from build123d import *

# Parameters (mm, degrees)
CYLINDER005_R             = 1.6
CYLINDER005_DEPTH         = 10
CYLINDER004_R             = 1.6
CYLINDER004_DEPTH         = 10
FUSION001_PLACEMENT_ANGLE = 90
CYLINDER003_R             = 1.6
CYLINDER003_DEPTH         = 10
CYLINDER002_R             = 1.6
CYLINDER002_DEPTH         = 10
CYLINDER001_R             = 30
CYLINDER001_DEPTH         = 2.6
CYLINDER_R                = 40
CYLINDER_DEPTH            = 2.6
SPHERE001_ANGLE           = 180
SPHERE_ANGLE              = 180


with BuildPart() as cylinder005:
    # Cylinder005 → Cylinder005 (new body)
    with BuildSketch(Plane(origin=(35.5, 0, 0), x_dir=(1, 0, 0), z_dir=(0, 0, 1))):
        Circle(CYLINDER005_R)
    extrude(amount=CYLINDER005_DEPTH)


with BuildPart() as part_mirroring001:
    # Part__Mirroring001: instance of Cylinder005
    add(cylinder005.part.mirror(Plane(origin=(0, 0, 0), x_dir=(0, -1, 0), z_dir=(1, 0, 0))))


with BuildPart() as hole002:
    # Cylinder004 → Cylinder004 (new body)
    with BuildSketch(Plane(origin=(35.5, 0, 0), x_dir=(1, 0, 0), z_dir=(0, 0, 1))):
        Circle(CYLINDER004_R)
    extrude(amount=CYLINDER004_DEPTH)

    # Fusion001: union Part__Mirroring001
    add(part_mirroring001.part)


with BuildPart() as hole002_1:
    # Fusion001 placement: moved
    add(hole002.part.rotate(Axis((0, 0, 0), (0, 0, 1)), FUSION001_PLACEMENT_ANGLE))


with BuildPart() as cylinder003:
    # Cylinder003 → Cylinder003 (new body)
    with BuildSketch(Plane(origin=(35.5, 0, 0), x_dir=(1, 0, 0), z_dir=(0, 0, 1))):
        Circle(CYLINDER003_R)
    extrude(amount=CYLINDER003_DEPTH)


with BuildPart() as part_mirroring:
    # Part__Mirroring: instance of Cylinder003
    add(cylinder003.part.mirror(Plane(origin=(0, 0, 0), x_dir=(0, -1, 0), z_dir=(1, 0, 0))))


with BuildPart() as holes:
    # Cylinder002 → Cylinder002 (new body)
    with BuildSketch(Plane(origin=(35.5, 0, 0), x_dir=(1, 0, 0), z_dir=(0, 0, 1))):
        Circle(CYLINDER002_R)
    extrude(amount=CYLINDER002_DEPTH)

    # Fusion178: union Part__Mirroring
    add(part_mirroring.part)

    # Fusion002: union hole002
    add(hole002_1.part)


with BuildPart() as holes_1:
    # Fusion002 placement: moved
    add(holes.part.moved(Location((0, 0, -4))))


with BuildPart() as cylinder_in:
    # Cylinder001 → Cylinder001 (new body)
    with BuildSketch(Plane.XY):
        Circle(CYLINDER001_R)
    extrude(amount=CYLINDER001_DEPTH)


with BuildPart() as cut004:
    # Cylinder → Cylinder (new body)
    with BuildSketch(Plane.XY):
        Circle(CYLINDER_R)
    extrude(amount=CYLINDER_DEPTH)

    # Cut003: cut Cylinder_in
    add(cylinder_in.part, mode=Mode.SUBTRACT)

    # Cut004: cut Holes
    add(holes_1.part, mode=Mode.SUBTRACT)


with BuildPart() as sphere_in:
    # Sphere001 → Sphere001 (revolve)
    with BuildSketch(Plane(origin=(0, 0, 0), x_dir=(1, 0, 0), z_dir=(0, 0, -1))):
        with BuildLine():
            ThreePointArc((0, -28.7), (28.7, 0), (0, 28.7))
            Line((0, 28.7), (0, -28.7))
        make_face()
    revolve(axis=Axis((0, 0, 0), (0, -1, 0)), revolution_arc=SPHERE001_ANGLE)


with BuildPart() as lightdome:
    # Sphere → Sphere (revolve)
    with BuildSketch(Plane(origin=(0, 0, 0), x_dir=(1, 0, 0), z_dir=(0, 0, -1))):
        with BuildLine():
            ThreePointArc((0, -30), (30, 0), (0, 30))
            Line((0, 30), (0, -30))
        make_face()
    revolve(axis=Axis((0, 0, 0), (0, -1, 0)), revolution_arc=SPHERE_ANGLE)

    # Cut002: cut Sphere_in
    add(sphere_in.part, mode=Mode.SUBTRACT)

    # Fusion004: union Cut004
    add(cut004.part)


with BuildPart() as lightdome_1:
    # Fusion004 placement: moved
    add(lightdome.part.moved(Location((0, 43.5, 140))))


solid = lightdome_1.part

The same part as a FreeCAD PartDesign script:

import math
import FreeCAD as App
import Part
import Sketcher
from FreeCAD import Vector

doc = App.newDocument("Part")
body = doc.addObject("PartDesign::Body", "Body")

# Sketch on XY plane
sketch1 = body.newObject("Sketcher::SketchObject", "Sketch")
sketch1.AttachmentSupport = (doc.getObject("XY_Plane"), [""])
sketch1.MapMode = "FlatFace"
sketch1.addGeometry(Part.Circle(Vector(35.5, 0, 0), Vector(0, 0, 1), 1.6), False)
sketch1.addConstraint(Sketcher.Constraint("PointOnObject", 0, 3, -1))
sketch1.addConstraint(Sketcher.Constraint("Diameter", 0, 3.2))
sketch1.addConstraint(Sketcher.Constraint("DistanceX", -1, 1, 0, 3, 35.5))
pad1 = body.newObject("PartDesign::Pad", "Pad")
pad1.Profile = sketch1
pad1.Length = 10
body2 = doc.addObject("PartDesign::Body", "Body001")
doc.recompute()

mirroring = doc.addObject("Part::Mirroring", "Mirroring")
mirroring.Source = body
mirroring.Base = Vector(0, 0, 0)
mirroring.Normal = Vector(1, 0, 0)
body2.BaseFeature = mirroring
doc.recompute()
body3 = doc.addObject("PartDesign::Body", "Body002")
body3.AllowCompound = True

# Sketch on XY plane
sketch2 = body3.newObject("Sketcher::SketchObject", "Sketch001")
sketch2.AttachmentSupport = (doc.getObject("XY_Plane002"), [""])
sketch2.MapMode = "FlatFace"
sketch2.addGeometry(Part.Circle(Vector(35.5, 0, 0), Vector(0, 0, 1), 1.6), False)
sketch2.addConstraint(Sketcher.Constraint("PointOnObject", 0, 3, -1))
sketch2.addConstraint(Sketcher.Constraint("Diameter", 0, 3.2))
sketch2.addConstraint(Sketcher.Constraint("DistanceX", -1, 1, 0, 3, 35.5))
pad2 = body3.newObject("PartDesign::Pad", "Pad001")
pad2.Profile = sketch2
pad2.Length = 10
doc.recompute()

boolean = body3.newObject("PartDesign::Boolean", "Boolean")
boolean.Type = "Fuse"
boolean.addObjects([body2])
body4 = doc.addObject("PartDesign::Body", "Body003")
body4.AllowCompound = True
doc.recompute()

body3.Placement = App.Placement(Vector(0, 0, 0), App.Rotation(Vector(0, 0, 1), 90))
boolean2 = body4.newObject("PartDesign::Boolean", "Boolean001")
boolean2.Type = "Fuse"
boolean2.addObjects([body3])
body5 = doc.addObject("PartDesign::Body", "Body004")

# Sketch on XY plane
sketch3 = body5.newObject("Sketcher::SketchObject", "Sketch002")
sketch3.AttachmentSupport = (doc.getObject("XY_Plane004"), [""])
sketch3.MapMode = "FlatFace"
sketch3.addGeometry(Part.Circle(Vector(35.5, 0, 0), Vector(0, 0, 1), 1.6), False)
sketch3.addConstraint(Sketcher.Constraint("PointOnObject", 0, 3, -1))
sketch3.addConstraint(Sketcher.Constraint("Diameter", 0, 3.2))
sketch3.addConstraint(Sketcher.Constraint("DistanceX", -1, 1, 0, 3, 35.5))
pad3 = body5.newObject("PartDesign::Pad", "Pad002")
pad3.Profile = sketch3
pad3.Length = 10
body6 = doc.addObject("PartDesign::Body", "Body005")
doc.recompute()

mirroring2 = doc.addObject("Part::Mirroring", "Mirroring001")
mirroring2.Source = body5
mirroring2.Base = Vector(0, 0, 0)
mirroring2.Normal = Vector(1, 0, 0)
body6.BaseFeature = mirroring2
doc.recompute()
body7 = doc.addObject("PartDesign::Body", "Body006")
body7.AllowCompound = True

# Sketch on XY plane
sketch4 = body7.newObject("Sketcher::SketchObject", "Sketch003")
sketch4.AttachmentSupport = (doc.getObject("XY_Plane006"), [""])
sketch4.MapMode = "FlatFace"
sketch4.addGeometry(Part.Circle(Vector(35.5, 0, 0), Vector(0, 0, 1), 1.6), False)
sketch4.addConstraint(Sketcher.Constraint("PointOnObject", 0, 3, -1))
sketch4.addConstraint(Sketcher.Constraint("Diameter", 0, 3.2))
sketch4.addConstraint(Sketcher.Constraint("DistanceX", -1, 1, 0, 3, 35.5))
pad4 = body7.newObject("PartDesign::Pad", "Pad003")
pad4.Profile = sketch4
pad4.Length = 10
doc.recompute()

boolean3 = body7.newObject("PartDesign::Boolean", "Boolean002")
boolean3.Type = "Fuse"
boolean3.addObjects([body6])
doc.recompute()

boolean4 = body7.newObject("PartDesign::Boolean", "Boolean003")
boolean4.Type = "Fuse"
boolean4.addObjects([body4])
body8 = doc.addObject("PartDesign::Body", "Body007")
body8.AllowCompound = True
doc.recompute()

body7.Placement = App.Placement(Vector(0, 0, -4), App.Rotation(Vector(0, 0, 1), 0))
boolean5 = body8.newObject("PartDesign::Boolean", "Boolean004")
boolean5.Type = "Fuse"
boolean5.addObjects([body7])
body9 = doc.addObject("PartDesign::Body", "Body008")

# Sketch on XY plane
sketch5 = body9.newObject("Sketcher::SketchObject", "Sketch004")
sketch5.AttachmentSupport = (doc.getObject("XY_Plane008"), [""])
sketch5.MapMode = "FlatFace"
sketch5.addGeometry(Part.Circle(Vector(0, 0, 0), Vector(0, 0, 1), 30), False)
sketch5.addConstraint(Sketcher.Constraint("Coincident", 0, 3, -1, 1))
sketch5.addConstraint(Sketcher.Constraint("Diameter", 0, 60.0))
pad5 = body9.newObject("PartDesign::Pad", "Pad004")
pad5.Profile = sketch5
pad5.Length = 2.6
body10 = doc.addObject("PartDesign::Body", "Body009")

# Sketch on XY plane
sketch6 = body10.newObject("Sketcher::SketchObject", "Sketch005")
sketch6.AttachmentSupport = (doc.getObject("XY_Plane009"), [""])
sketch6.MapMode = "FlatFace"
sketch6.addGeometry(Part.Circle(Vector(0, 0, 0), Vector(0, 0, 1), 40), False)
sketch6.addConstraint(Sketcher.Constraint("Coincident", 0, 3, -1, 1))
sketch6.addConstraint(Sketcher.Constraint("Diameter", 0, 80.0))
pad6 = body10.newObject("PartDesign::Pad", "Pad005")
pad6.Profile = sketch6
pad6.Length = 2.6
doc.recompute()

boolean6 = body10.newObject("PartDesign::Boolean", "Boolean005")
boolean6.Type = "Cut"
boolean6.addObjects([body9])
doc.recompute()

boolean7 = body10.newObject("PartDesign::Boolean", "Boolean006")
boolean7.Type = "Cut"
boolean7.addObjects([body8])
body11 = doc.addObject("PartDesign::Body", "Body010")

# Sketch on XY plane
sketch7 = body11.newObject("Sketcher::SketchObject", "Sketch006")
sketch7.AttachmentSupport = (doc.getObject("XY_Plane010"), [""])
sketch7.MapMode = "FlatFace"
sketch7.addGeometry(Part.ArcOfCircle(Part.Circle(Vector(0, 0, 0), Vector(0, 0, 1), 29), math.radians(-90), math.radians(90)), False)
sketch7.addGeometry(Part.LineSegment(Vector(0, -29, 0), Vector(0, 29, 0)), False)
sketch7.addConstraint(Sketcher.Constraint("Coincident", 0, 1, 1, 1))
sketch7.addConstraint(Sketcher.Constraint("Coincident", 1, 2, 0, 2))
sketch7.addConstraint(Sketcher.Constraint("Vertical", 1))
sketch7.addConstraint(Sketcher.Constraint("Coincident", 0, 3, -1, 1))
sketch7.addConstraint(Sketcher.Constraint("PointOnObject", 0, 1, -2))
sketch7.addConstraint(Sketcher.Constraint("Radius", 0, 28.7))
revolution = body11.newObject("PartDesign::Revolution", "Revolution")
revolution.Profile = sketch7
revolution.ReferenceAxis = (sketch7, ["V_Axis"])
revolution.Angle = 180
revolution.Reversed = True
body12 = doc.addObject("PartDesign::Body", "Body011")
body12.AllowCompound = True

# Sketch on XY plane
sketch8 = body12.newObject("Sketcher::SketchObject", "Sketch007")
sketch8.AttachmentSupport = (doc.getObject("XY_Plane011"), [""])
sketch8.MapMode = "FlatFace"
sketch8.addGeometry(Part.ArcOfCircle(Part.Circle(Vector(0, 0, 0), Vector(0, 0, 1), 30), math.radians(-90), math.radians(90)), False)
sketch8.addGeometry(Part.LineSegment(Vector(0, -30, 0), Vector(0, 30, 0)), False)
sketch8.addConstraint(Sketcher.Constraint("Coincident", 0, 1, 1, 1))
sketch8.addConstraint(Sketcher.Constraint("Coincident", 1, 2, 0, 2))
sketch8.addConstraint(Sketcher.Constraint("Vertical", 1))
sketch8.addConstraint(Sketcher.Constraint("Coincident", 0, 3, -1, 1))
sketch8.addConstraint(Sketcher.Constraint("PointOnObject", 0, 1, -2))
sketch8.addConstraint(Sketcher.Constraint("Radius", 0, 30.0))
revolution2 = body12.newObject("PartDesign::Revolution", "Revolution001")
revolution2.Profile = sketch8
revolution2.ReferenceAxis = (sketch8, ["V_Axis"])
revolution2.Angle = 180
revolution2.Reversed = True
doc.recompute()

boolean8 = body12.newObject("PartDesign::Boolean", "Boolean007")
boolean8.Type = "Cut"
boolean8.addObjects([body11])
doc.recompute()

boolean9 = body12.newObject("PartDesign::Boolean", "Boolean008")
boolean9.Type = "Fuse"
boolean9.addObjects([body10])
body13 = doc.addObject("PartDesign::Body", "Body012")
body13.AllowCompound = True
doc.recompute()

body12.Placement = App.Placement(Vector(0, 43.5, 140), App.Rotation(Vector(0, 0, 1), 0))
boolean10 = body13.newObject("PartDesign::Boolean", "Boolean009")
boolean10.Type = "Fuse"
boolean10.addObjects([body12])
mirroring.Visibility = False
mirroring2.Visibility = False

doc.recompute()
